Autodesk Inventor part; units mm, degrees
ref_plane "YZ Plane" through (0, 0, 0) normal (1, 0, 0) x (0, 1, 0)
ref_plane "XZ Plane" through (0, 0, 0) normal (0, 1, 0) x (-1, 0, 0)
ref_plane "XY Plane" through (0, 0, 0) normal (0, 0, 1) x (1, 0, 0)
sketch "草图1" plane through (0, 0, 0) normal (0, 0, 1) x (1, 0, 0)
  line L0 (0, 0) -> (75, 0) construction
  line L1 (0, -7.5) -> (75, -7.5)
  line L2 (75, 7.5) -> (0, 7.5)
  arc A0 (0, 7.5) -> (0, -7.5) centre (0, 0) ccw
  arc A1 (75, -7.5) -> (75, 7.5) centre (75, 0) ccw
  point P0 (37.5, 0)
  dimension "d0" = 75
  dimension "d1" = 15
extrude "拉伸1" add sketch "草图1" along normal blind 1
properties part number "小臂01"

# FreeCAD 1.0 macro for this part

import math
import FreeCAD as App
import Part
import Sketcher
from FreeCAD import Vector

doc = App.newDocument("Part")
body = doc.addObject("PartDesign::Body", "Body")

# Sketch on XY plane
sketch1 = body.newObject("Sketcher::SketchObject", "Sketch")
sketch1.AttachmentSupport = (doc.getObject("XY_Plane"), [""])
sketch1.MapMode = "FlatFace"
sketch1.addGeometry([
    Part.ArcOfCircle(Part.Circle(Vector(0, 0, 0), Vector(0, 0, 1), 8), math.radians(90), math.radians(270)),
    Part.LineSegment(Vector(0, -8, 0), Vector(75, -8, 0)),
    Part.ArcOfCircle(Part.Circle(Vector(75, 0, 0), Vector(0, 0, 1), 8), math.radians(-90), math.radians(90)),
    Part.LineSegment(Vector(75, 8, 0), Vector(0, 8, 0)),
], False)
sketch1.addConstraint([
    Sketcher.Constraint("Tangent", 0, 2, 1, 1),
    Sketcher.Constraint("Tangent", 1, 2, 2, 1),
    Sketcher.Constraint("Tangent", 2, 2, 3, 1),
    Sketcher.Constraint("Tangent", 3, 2, 0, 1),
    Sketcher.Constraint("Horizontal", 1),
    Sketcher.Constraint("Horizontal", 3),
    Sketcher.Constraint("Coincident", 0, 3, -1, 1),
    Sketcher.Constraint("Radius", 0, 7.5),
    Sketcher.Constraint("DistanceX", 1, 1, 1, 2, 75.0),
])
pad1 = body.newObject("PartDesign::Pad", "Pad")
pad1.Profile = sketch1
pad1.Length = 1

doc.recompute()
